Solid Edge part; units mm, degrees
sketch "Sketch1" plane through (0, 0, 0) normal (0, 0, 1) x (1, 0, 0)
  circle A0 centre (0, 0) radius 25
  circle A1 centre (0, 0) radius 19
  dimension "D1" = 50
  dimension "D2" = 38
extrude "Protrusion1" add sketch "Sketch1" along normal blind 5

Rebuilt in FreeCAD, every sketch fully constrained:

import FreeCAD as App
import Part
import Sketcher

V = App.Vector

doc = App.newDocument("Part")
body = doc.addObject("PartDesign::Body", "Body")

# Sketch on XY plane
sketch1 = body.newObject("Sketcher::SketchObject", "Sketch")
sketch1.AttachmentSupport = (doc.getObject("XY_Plane"), [""])
sketch1.MapMode = "FlatFace"
sketch1.addGeometry([
    Part.Circle(V(0, 0, 0), V(0, 0, 1), 25),
    Part.Circle(V(0, 0, 0), V(0, 0, 1), 19),
], False)
sketch1.addConstraint([
    Sketcher.Constraint("Coincident", 0, 3, -1, 1),
    Sketcher.Constraint("Coincident", 1, 3, -1, 1),
    Sketcher.Constraint("Diameter", 0, 50.0),
    Sketcher.Constraint("Diameter", 1, 38.0),
])
pad1 = body.newObject("PartDesign::Pad", "Pad")
pad1.Profile = sketch1
pad1.Length = 5

doc.recompute()
